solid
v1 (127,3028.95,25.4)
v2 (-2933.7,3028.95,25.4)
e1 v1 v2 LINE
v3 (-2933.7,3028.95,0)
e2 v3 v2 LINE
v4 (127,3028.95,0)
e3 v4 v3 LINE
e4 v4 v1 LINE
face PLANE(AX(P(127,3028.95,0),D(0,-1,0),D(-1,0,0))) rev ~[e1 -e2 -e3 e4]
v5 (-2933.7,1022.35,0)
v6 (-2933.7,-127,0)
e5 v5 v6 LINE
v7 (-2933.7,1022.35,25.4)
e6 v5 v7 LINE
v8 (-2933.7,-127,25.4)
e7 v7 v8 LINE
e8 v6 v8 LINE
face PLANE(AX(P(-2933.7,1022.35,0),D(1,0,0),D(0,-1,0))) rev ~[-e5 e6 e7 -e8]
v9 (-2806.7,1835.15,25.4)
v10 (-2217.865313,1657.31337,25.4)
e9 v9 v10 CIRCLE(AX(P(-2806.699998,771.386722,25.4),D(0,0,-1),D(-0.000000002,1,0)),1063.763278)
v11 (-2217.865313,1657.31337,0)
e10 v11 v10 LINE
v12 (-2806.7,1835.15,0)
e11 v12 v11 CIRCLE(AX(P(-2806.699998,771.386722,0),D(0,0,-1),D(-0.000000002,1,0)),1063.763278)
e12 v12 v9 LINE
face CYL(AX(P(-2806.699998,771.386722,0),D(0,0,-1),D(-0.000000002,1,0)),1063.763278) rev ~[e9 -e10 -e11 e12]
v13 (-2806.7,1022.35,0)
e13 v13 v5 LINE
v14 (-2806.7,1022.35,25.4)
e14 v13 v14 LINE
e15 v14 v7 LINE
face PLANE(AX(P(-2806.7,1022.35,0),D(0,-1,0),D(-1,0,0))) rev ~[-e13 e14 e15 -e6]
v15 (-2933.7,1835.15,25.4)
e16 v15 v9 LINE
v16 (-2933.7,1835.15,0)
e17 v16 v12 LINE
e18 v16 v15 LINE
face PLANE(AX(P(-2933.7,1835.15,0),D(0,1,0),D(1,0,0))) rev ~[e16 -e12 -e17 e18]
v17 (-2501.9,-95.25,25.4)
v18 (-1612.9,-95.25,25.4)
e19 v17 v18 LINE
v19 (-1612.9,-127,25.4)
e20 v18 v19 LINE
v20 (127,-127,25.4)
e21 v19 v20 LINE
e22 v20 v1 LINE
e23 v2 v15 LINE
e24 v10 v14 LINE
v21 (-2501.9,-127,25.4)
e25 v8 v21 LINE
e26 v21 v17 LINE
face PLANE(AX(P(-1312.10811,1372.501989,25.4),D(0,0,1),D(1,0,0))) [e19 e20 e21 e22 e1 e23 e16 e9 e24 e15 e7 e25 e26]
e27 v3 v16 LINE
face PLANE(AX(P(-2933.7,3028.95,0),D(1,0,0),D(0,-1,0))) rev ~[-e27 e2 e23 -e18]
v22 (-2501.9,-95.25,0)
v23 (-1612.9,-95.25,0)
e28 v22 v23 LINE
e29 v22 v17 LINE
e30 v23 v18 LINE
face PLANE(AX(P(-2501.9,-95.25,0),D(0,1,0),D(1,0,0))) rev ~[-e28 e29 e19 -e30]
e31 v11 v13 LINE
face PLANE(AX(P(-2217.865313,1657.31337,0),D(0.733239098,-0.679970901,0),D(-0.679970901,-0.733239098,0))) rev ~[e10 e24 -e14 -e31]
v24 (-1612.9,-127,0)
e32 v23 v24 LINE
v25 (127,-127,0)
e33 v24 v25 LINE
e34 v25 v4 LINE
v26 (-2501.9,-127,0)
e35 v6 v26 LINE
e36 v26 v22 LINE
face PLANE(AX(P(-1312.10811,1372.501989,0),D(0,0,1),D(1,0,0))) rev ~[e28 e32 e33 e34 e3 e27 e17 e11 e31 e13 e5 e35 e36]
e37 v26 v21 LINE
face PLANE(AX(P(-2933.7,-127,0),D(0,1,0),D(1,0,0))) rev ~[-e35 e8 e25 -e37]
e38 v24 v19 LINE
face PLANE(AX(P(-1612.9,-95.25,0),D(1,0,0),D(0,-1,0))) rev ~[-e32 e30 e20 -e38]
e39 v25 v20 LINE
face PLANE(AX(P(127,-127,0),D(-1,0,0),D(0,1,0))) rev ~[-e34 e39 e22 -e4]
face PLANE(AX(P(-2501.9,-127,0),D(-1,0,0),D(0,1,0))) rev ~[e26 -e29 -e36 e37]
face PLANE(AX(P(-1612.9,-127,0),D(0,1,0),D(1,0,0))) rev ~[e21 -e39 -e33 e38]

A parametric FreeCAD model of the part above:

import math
import FreeCAD as App
import Part
import Sketcher

V = App.Vector
Q = App.Units.Quantity

doc = App.newDocument("Part")
body = doc.addObject("PartDesign::Body", "Body")

# Sketch on XY plane
sketch1 = doc.addObject("Sketcher::SketchObject", "Sketch")
body.addObject(sketch1)
sketch1.AttachmentSupport = (doc.XY_Plane, [""])
sketch1.MapMode = "FlatFace"
sketch1.addGeometry([
    Part.LineSegment(V(-2807, 1022, 0), V(-2934, 1022, 0)),  # 0
    Part.LineSegment(V(-2934, 1022, 0), V(-2934, -127, 0)),  # 1
    Part.LineSegment(V(-2934, -127, 0), V(-2502, -127, 0)),  # 2
    Part.LineSegment(V(-2502, -127, 0), V(-2502, -95, 0)),  # 3
    Part.LineSegment(V(-2502, -95, 0), V(-1613, -95, 0)),  # 4
    Part.LineSegment(V(-1613, -95, 0), V(-1613, -127, 0)),  # 5
    Part.LineSegment(V(-1613, -127, 0), V(127, -127, 0)),  # 6
    Part.LineSegment(V(127, -127, 0), V(127, 3029, 0)),  # 7
    Part.LineSegment(V(127, 3029, 0), V(-2934, 3029, 0)),  # 8
    Part.LineSegment(V(-2934, 3029, 0), V(-2934, 1835, 0)),  # 9
    Part.LineSegment(V(-2934, 1835, 0), V(-2807, 1835, 0)),  # 10
    Part.ArcOfCircle(Part.Circle(V(-2807, 771, 0), V(0, 0, 1), 1064), math.radians(56), math.radians(90)),  # 11
    Part.LineSegment(V(-2218, 1657, 0), V(-2807, 1022, 0)),  # 12
], False)
sketch1.addConstraint([
    Sketcher.Constraint("Coincident", 0, 2, 1, 1),
    Sketcher.Constraint("Coincident", 1, 2, 2, 1),
    Sketcher.Constraint("Coincident", 2, 2, 3, 1),
    Sketcher.Constraint("Coincident", 3, 2, 4, 1),
    Sketcher.Constraint("Coincident", 4, 2, 5, 1),
    Sketcher.Constraint("Coincident", 5, 2, 6, 1),
    Sketcher.Constraint("Coincident", 6, 2, 7, 1),
    Sketcher.Constraint("Coincident", 7, 2, 8, 1),
    Sketcher.Constraint("Coincident", 8, 2, 9, 1),
    Sketcher.Constraint("Coincident", 9, 2, 10, 1),
    Sketcher.Constraint("Tangent", 10, 2, 11, 2),
    Sketcher.Constraint("Coincident", 11, 1, 12, 1),
    Sketcher.Constraint("Coincident", 12, 2, 0, 1),
    Sketcher.Constraint("Horizontal", 0),
    Sketcher.Constraint("Vertical", 1),
    Sketcher.Constraint("Horizontal", 2),
    Sketcher.Constraint("Vertical", 3),
    Sketcher.Constraint("Horizontal", 4),
    Sketcher.Constraint("Vertical", 5),
    Sketcher.Constraint("Horizontal", 6),
    Sketcher.Constraint("Vertical", 7),
    Sketcher.Constraint("Horizontal", 8),
    Sketcher.Constraint("Vertical", 9),
    Sketcher.Constraint("Horizontal", 10),
    Sketcher.Constraint("Horizontal", 2, 2, 5, 2),
    Sketcher.Constraint("Vertical", 1, 2, 8, 2),
    Sketcher.Constraint("Vertical", 10, 2, 12, 2),
    Sketcher.Constraint("DistanceX", 0, 2, 0, 1, Q("5 in")),
    Sketcher.Constraint("DistanceX", 2, 1, 2, 2, Q("17 in")),
    Sketcher.Constraint("DistanceX", 4, 1, 4, 2, Q("35 in")),
    Sketcher.Constraint("DistanceY", 9, 2, 9, 1, Q("47 in")),
    Sketcher.Constraint("DistanceX", 6, 1, 6, 2, Q("68.5 in")),
    Sketcher.Constraint("DistanceY", 1, 2, -1, 1, Q("5 in")),
    Sketcher.Constraint("DistanceX", -1, 1, 6, 2, Q("5 in")),
    Sketcher.Constraint("DistanceY", 3, 2, 0, 2, Q("44 in")),
    Sketcher.Constraint("DistanceY", 4, 2, 7, 2, Q("123 in")),
    Sketcher.Constraint("DistanceY", 1, 2, 1, 1, Q("45.25 in")),
    Sketcher.Constraint("Radius", 11, Q("1063.763278 mm")),
    Sketcher.Constraint("Distance", 12, Q("865.970421 mm")),
])
pad1 = doc.addObject("PartDesign::Pad", "Pad")
body.addObject(pad1)
pad1.Profile = sketch1
pad1.Length = Q("1 in")

doc.recompute()
